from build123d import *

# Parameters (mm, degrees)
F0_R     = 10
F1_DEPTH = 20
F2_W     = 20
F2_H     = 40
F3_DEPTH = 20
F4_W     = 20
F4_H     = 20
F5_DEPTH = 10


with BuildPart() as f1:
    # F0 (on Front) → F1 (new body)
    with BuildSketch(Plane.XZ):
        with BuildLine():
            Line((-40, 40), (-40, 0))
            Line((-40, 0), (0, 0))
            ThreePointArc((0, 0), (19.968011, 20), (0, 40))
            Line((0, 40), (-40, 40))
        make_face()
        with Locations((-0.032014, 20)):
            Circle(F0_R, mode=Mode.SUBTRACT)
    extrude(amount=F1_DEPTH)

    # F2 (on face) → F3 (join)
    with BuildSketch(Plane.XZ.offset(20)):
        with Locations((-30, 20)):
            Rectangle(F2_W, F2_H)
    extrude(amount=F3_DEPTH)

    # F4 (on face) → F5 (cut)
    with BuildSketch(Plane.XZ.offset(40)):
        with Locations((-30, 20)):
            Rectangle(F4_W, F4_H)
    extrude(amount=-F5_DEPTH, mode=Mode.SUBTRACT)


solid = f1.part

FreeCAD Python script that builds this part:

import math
import FreeCAD as App
import Part
import Sketcher
from FreeCAD import Vector
Q = App.Units.Quantity

doc = App.newDocument("Part")
body = doc.addObject("PartDesign::Body", "Body")

# Sketch on XZ plane
sketch1 = doc.addObject("Sketcher::SketchObject", "Sketch")
body.addObject(sketch1)
sketch1.AttachmentSupport = (doc.XZ_Plane, [""])
sketch1.MapMode = "FlatFace"
sketch1.addGeometry(Part.LineSegment(Vector(-40, 40, 0), Vector(-40, 0, 0)), False)
sketch1.addGeometry(Part.LineSegment(Vector(-40, 0, 0), Vector(0, 0, 0)), False)
sketch1.addGeometry(Part.ArcOfCircle(Part.Circle(Vector(0, 20, 0), Vector(0, 0, 1), 20), math.radians(-90), math.radians(90)), False)
sketch1.addGeometry(Part.LineSegment(Vector(0, 40, 0), Vector(-40, 40, 0)), False)
sketch1.addGeometry(Part.Circle(Vector(0, 20, 0), Vector(0, 0, 1), 10), False)
sketch1.addConstraint(Sketcher.Constraint("Coincident", 0, 2, 1, 1))
sketch1.addConstraint(Sketcher.Constraint("Coincident", 1, 2, 2, 1))
sketch1.addConstraint(Sketcher.Constraint("Coincident", 2, 2, 3, 1))
sketch1.addConstraint(Sketcher.Constraint("Coincident", 3, 2, 0, 1))
sketch1.addConstraint(Sketcher.Constraint("Vertical", 0))
sketch1.addConstraint(Sketcher.Constraint("Horizontal", 1))
sketch1.addConstraint(Sketcher.Constraint("Horizontal", 3))
sketch1.addConstraint(Sketcher.Constraint("Coincident", 1, 2, -1, 1))
sketch1.addConstraint(Sketcher.Constraint("Coincident", 4, 3, 2, 3))
sketch1.addConstraint(Sketcher.Constraint("PointOnObject", 2, 2, -2))
sketch1.addConstraint(Sketcher.Constraint("Equal", 3, 0))
sketch1.addConstraint(Sketcher.Constraint("Diameter", 4, Q("20 mm")))
sketch1.addConstraint(Sketcher.Constraint("DistanceX", 1, 1, 1, 2, Q("40 mm")))
sketch1.addConstraint(Sketcher.Constraint("DistanceX", 2, 3, -1, 1, Q("0.032015 mm")))
pad1 = doc.addObject("PartDesign::Pad", "Pad")
body.addObject(pad1)
pad1.Profile = sketch1
pad1.Length = 20

# Sketch on XZ plane
sketch2 = doc.addObject("Sketcher::SketchObject", "Sketch001")
body.addObject(sketch2)
sketch2.AttachmentSupport = (doc.XZ_Plane, [""])
sketch2.MapMode = "FlatFace"
sketch2.AttachmentOffset = App.Placement(Vector(0, 0, 20), App.Rotation())
sketch2.addGeometry(Part.LineSegment(Vector(-40, 40, 0), Vector(-40, 0, 0)), False)
sketch2.addGeometry(Part.LineSegment(Vector(-40, 0, 0), Vector(-20, 0, 0)), False)
sketch2.addGeometry(Part.LineSegment(Vector(-20, 0, 0), Vector(-20, 40, 0)), False)
sketch2.addGeometry(Part.LineSegment(Vector(-20, 40, 0), Vector(-40, 40, 0)), False)
sketch2.addConstraint(Sketcher.Constraint("Coincident", 0, 2, 1, 1))
sketch2.addConstraint(Sketcher.Constraint("Coincident", 1, 2, 2, 1))
sketch2.addConstraint(Sketcher.Constraint("Coincident", 2, 2, 3, 1))
sketch2.addConstraint(Sketcher.Constraint("Coincident", 3, 2, 0, 1))
sketch2.addConstraint(Sketcher.Constraint("Vertical", 0))
sketch2.addConstraint(Sketcher.Constraint("Horizontal", 1))
sketch2.addConstraint(Sketcher.Constraint("Vertical", 2))
sketch2.addConstraint(Sketcher.Constraint("Horizontal", 3))
sketch2.addConstraint(Sketcher.Constraint("PointOnObject", 0, 2, -1))
sketch2.addConstraint(Sketcher.Constraint("DistanceX", 1, 1, 1, 2, Q("20 mm")))
sketch2.addConstraint(Sketcher.Constraint("DistanceY", 0, 2, 0, 1, Q("40 mm")))
sketch2.addConstraint(Sketcher.Constraint("DistanceX", 0, 2, -1, 1, Q("40 mm")))
pad2 = doc.addObject("PartDesign::Pad", "Pad001")
body.addObject(pad2)
pad2.Profile = sketch2
pad2.Length = 20

# Sketch on XZ plane
sketch3 = doc.addObject("Sketcher::SketchObject", "Sketch002")
body.addObject(sketch3)
sketch3.AttachmentSupport = (doc.XZ_Plane, [""])
sketch3.MapMode = "FlatFace"
sketch3.AttachmentOffset = App.Placement(Vector(0, 0, 40), App.Rotation())
sketch3.addGeometry(Part.LineSegment(Vector(-40, 30, 0), Vector(-40, 10, 0)), False)
sketch3.addGeometry(Part.LineSegment(Vector(-40, 10, 0), Vector(-20, 10, 0)), False)
sketch3.addGeometry(Part.LineSegment(Vector(-20, 10, 0), Vector(-20, 30, 0)), False)
sketch3.addGeometry(Part.LineSegment(Vector(-20, 30, 0), Vector(-40, 30, 0)), False)
sketch3.addConstraint(Sketcher.Constraint("Coincident", 0, 2, 1, 1))
sketch3.addConstraint(Sketcher.Constraint("Coincident", 1, 2, 2, 1))
sketch3.addConstraint(Sketcher.Constraint("Coincident", 2, 2, 3, 1))
sketch3.addConstraint(Sketcher.Constraint("Coincident", 3, 2, 0, 1))
sketch3.addConstraint(Sketcher.Constraint("Vertical", 0))
sketch3.addConstraint(Sketcher.Constraint("Horizontal", 1))
sketch3.addConstraint(Sketcher.Constraint("Vertical", 2))
sketch3.addConstraint(Sketcher.Constraint("Horizontal", 3))
sketch3.addConstraint(Sketcher.Constraint("Equal", 3, 0))
sketch3.addConstraint(Sketcher.Constraint("DistanceX", 1, 1, 1, 2, Q("20 mm")))
sketch3.addConstraint(Sketcher.Constraint("DistanceX", 0, 2, -1, 1, Q("40 mm")))
sketch3.addConstraint(Sketcher.Constraint("DistanceY", -1, 1, 0, 2, Q("10 mm")))
pocket1 = doc.addObject("PartDesign::Pocket", "Pocket")
body.addObject(pocket1)
pocket1.Profile = sketch3
pocket1.Length = 10

doc.recompute()
